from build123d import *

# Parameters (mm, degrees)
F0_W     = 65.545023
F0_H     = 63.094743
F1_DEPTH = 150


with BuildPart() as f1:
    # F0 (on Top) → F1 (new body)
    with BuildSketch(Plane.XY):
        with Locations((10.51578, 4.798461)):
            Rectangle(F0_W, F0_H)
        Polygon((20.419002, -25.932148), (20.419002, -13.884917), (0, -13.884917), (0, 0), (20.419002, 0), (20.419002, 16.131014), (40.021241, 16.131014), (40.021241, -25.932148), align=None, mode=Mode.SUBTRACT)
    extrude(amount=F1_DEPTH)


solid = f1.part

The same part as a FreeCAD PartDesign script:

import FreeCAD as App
import Part
import Sketcher

V = App.Vector
Q = App.Units.Quantity

doc = App.newDocument("Part")
body = doc.addObject("PartDesign::Body", "Body")

sketch1 = body.newObject("Sketcher::SketchObject", "Sketch")
sketch1.AttachmentSupport = (doc.getObject("XY_Plane"), [""])
sketch1.MapMode = "FlatFace"
sketch1.addGeometry(Part.LineSegment(V(-22, 36, 0), V(-22, -27, 0)), False)
sketch1.addGeometry(Part.LineSegment(V(-22, -27, 0), V(43, -27, 0)), False)
sketch1.addGeometry(Part.LineSegment(V(43, -27, 0), V(43, 36, 0)), False)
sketch1.addGeometry(Part.LineSegment(V(43, 36, 0), V(-22, 36, 0)), False)
sketch1.addGeometry(Part.LineSegment(V(40, -26, 0), V(20, -26, 0)), False)
sketch1.addGeometry(Part.LineSegment(V(20, -26, 0), V(20, -14, 0)), False)
sketch1.addGeometry(Part.LineSegment(V(20, -14, 0), V(0, -14, 0)), False)
sketch1.addGeometry(Part.LineSegment(V(0, -14, 0), V(0, 0, 0)), False)
sketch1.addGeometry(Part.LineSegment(V(0, 0, 0), V(20, 0, 0)), False)
sketch1.addGeometry(Part.LineSegment(V(20, 0, 0), V(20, 16, 0)), False)
sketch1.addGeometry(Part.LineSegment(V(20, 16, 0), V(40, 16, 0)), False)
sketch1.addGeometry(Part.LineSegment(V(40, 16, 0), V(40, -26, 0)), False)
sketch1.addConstraint(Sketcher.Constraint("Coincident", 0, 2, 1, 1))
sketch1.addConstraint(Sketcher.Constraint("Coincident", 1, 2, 2, 1))
sketch1.addConstraint(Sketcher.Constraint("Coincident", 2, 2, 3, 1))
sketch1.addConstraint(Sketcher.Constraint("Coincident", 3, 2, 0, 1))
sketch1.addConstraint(Sketcher.Constraint("Coincident", 4, 2, 5, 1))
sketch1.addConstraint(Sketcher.Constraint("Coincident", 5, 2, 6, 1))
sketch1.addConstraint(Sketcher.Constraint("Coincident", 6, 2, 7, 1))
sketch1.addConstraint(Sketcher.Constraint("Coincident", 7, 2, 8, 1))
sketch1.addConstraint(Sketcher.Constraint("Coincident", 8, 2, 9, 1))
sketch1.addConstraint(Sketcher.Constraint("Coincident", 9, 2, 10, 1))
sketch1.addConstraint(Sketcher.Constraint("Coincident", 10, 2, 11, 1))
sketch1.addConstraint(Sketcher.Constraint("Coincident", 11, 2, 4, 1))
sketch1.addConstraint(Sketcher.Constraint("Vertical", 0))
sketch1.addConstraint(Sketcher.Constraint("Horizontal", 1))
sketch1.addConstraint(Sketcher.Constraint("Vertical", 2))
sketch1.addConstraint(Sketcher.Constraint("Horizontal", 3))
sketch1.addConstraint(Sketcher.Constraint("Horizontal", 4))
sketch1.addConstraint(Sketcher.Constraint("Vertical", 5))
sketch1.addConstraint(Sketcher.Constraint("Horizontal", 6))
sketch1.addConstraint(Sketcher.Constraint("Vertical", 7))
sketch1.addConstraint(Sketcher.Constraint("Horizontal", 8))
sketch1.addConstraint(Sketcher.Constraint("Vertical", 9))
sketch1.addConstraint(Sketcher.Constraint("Horizontal", 10))
sketch1.addConstraint(Sketcher.Constraint("Vertical", 11))
sketch1.addConstraint(Sketcher.Constraint("Coincident", 7, 2, -1, 1))
sketch1.addConstraint(Sketcher.Constraint("Vertical", 5, 2, 8, 2))
sketch1.addConstraint(Sketcher.Constraint("DistanceX", 6, 2, 6, 1, Q("20.419002 mm")))
sketch1.addConstraint(Sketcher.Constraint("DistanceX", 4, 2, 4, 1, Q("19.602239 mm")))
sketch1.addConstraint(Sketcher.Constraint("DistanceY", 5, 1, 5, 2, Q("12.047231 mm")))
sketch1.addConstraint(Sketcher.Constraint("DistanceX", 1, 1, 1, 2, Q("65.545023 mm")))
sketch1.addConstraint(Sketcher.Constraint("DistanceY", 0, 2, 0, 1, Q("63.094743 mm")))
sketch1.addConstraint(Sketcher.Constraint("DistanceY", 7, 1, 7, 2, Q("13.884917 mm")))
sketch1.addConstraint(Sketcher.Constraint("DistanceY", 9, 1, 9, 2, Q("16.131014 mm")))
sketch1.addConstraint(Sketcher.Constraint("DistanceX", 0, 2, -1, 1, Q("22.256732 mm")))
sketch1.addConstraint(Sketcher.Constraint("DistanceY", 0, 2, -1, 1, Q("26.748911 mm")))
pad1 = body.newObject("PartDesign::Pad", "Pad")
pad1.Profile = sketch1
pad1.Length = 150

doc.recompute()
